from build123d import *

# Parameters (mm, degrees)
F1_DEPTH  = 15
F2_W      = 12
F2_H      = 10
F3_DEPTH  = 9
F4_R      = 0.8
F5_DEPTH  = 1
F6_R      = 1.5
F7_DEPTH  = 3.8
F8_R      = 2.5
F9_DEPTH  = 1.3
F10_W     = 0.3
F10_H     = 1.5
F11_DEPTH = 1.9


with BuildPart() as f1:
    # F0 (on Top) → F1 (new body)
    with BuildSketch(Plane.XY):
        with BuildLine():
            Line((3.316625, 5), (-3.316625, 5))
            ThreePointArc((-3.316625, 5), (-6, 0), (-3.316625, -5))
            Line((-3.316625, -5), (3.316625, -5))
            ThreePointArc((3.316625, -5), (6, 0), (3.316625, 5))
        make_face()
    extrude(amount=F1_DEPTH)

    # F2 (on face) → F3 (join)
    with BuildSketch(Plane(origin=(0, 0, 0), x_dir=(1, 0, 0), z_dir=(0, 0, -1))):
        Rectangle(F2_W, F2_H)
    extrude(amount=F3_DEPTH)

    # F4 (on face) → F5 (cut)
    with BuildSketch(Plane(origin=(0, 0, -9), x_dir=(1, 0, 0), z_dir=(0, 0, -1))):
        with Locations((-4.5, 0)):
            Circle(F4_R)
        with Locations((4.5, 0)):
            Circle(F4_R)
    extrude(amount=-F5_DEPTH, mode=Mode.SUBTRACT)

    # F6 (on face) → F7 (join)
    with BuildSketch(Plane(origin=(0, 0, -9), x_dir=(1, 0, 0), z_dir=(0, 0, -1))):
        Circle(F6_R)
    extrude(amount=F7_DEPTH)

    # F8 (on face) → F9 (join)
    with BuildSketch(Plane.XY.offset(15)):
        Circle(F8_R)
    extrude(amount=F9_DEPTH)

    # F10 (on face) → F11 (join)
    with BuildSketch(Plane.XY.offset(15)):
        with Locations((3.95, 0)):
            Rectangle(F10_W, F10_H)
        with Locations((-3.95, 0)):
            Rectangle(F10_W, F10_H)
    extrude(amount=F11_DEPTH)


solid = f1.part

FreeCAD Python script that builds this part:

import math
import FreeCAD as App
import Part
import Sketcher
Q = App.Units.Quantity


def add_polygon(sketch, points):
    """Adds a closed chain of lines whose ends are joined by coincident constraints."""
    first, n = sketch.GeometryCount, len(points)
    for a, b in zip(points, points[1:] + points[:1]):
        sketch.addGeometry(Part.LineSegment(App.Vector(*a, 0), App.Vector(*b, 0)), False)
    for i in range(n):
        sketch.addConstraint(Sketcher.Constraint("Coincident", first + i, 2, first + (i + 1) % n, 1))

doc = App.newDocument("Part")
body = doc.addObject("PartDesign::Body", "Body")

sketch1 = body.newObject("Sketcher::SketchObject", "Sketch")
sketch1.AttachmentSupport = (doc.getObject("XY_Plane"), [""])
sketch1.MapMode = "FlatFace"
sketch1.addGeometry([
    Part.LineSegment(App.Vector(3, 5, 0), App.Vector(-3, 5, 0)),
    Part.ArcOfCircle(Part.Circle(App.Vector(0, 0, 0), App.Vector(0, 0, 1), 6), math.radians(124), math.radians(236)),
    Part.LineSegment(App.Vector(-3, -5, 0), App.Vector(3, -5, 0)),
    Part.ArcOfCircle(Part.Circle(App.Vector(0, 0, 0), App.Vector(0, 0, 1), 6), math.radians(-56), math.radians(56)),
], False)
sketch1.addConstraint([
    Sketcher.Constraint("Coincident", 0, 2, 1, 1),
    Sketcher.Constraint("Coincident", 1, 2, 2, 1),
    Sketcher.Constraint("Coincident", 2, 2, 3, 1),
    Sketcher.Constraint("Coincident", 3, 2, 0, 1),
    Sketcher.Constraint("Horizontal", 0),
    Sketcher.Constraint("Horizontal", 2),
    Sketcher.Constraint("Coincident", 1, 3, -1, 1),
    Sketcher.Constraint("Coincident", 3, 3, -1, 1),
    Sketcher.Constraint("Equal", 1, 3),
    Sketcher.Constraint("Vertical", 0, 2, 1, 2),
    Sketcher.Constraint("Radius", 1, Q("6 mm")),
    Sketcher.Constraint("DistanceY", -1, 1, 0, 2, Q("5 mm")),
])
pad1 = body.newObject("PartDesign::Pad", "Pad")
pad1.Profile = sketch1
pad1.Length = 15

sketch2 = body.newObject("Sketcher::SketchObject", "Sketch001")
sketch2.AttachmentSupport = (doc.getObject("XY_Plane"), [""])
sketch2.MapMode = "FlatFace"
add_polygon(sketch2, [(-6, -5), (-6, 5), (6, 5), (6, -5)])
sketch2.addConstraint([
    Sketcher.Constraint("Vertical", 0),
    Sketcher.Constraint("Horizontal", 1),
    Sketcher.Constraint("Vertical", 2),
    Sketcher.Constraint("Horizontal", 3),
    Sketcher.Constraint("Symmetric", 0, 2, 2, 2, -1, 1),
    Sketcher.Constraint("DistanceX", 1, 1, 1, 2, Q("12 mm")),
    Sketcher.Constraint("DistanceY", 0, 1, 0, 2, Q("10 mm")),
])
pad2 = body.newObject("PartDesign::Pad", "Pad001")
pad2.Profile = sketch2
pad2.Length = 9
pad2.Reversed = True

sketch3 = body.newObject("Sketcher::SketchObject", "Sketch002")
sketch3.AttachmentSupport = (doc.getObject("XY_Plane"), [""])
sketch3.MapMode = "FlatFace"
sketch3.AttachmentOffset = App.Placement(App.Vector(0, 0, -9), App.Rotation())
sketch3.addGeometry([
    Part.Circle(App.Vector(-4.5, 0, 0), App.Vector(0, 0, 1), 0.8),
    Part.Circle(App.Vector(4.5, 0, 0), App.Vector(0, 0, 1), 0.8),
], False)
sketch3.addConstraint([
    Sketcher.Constraint("Equal", 0, 1),
    Sketcher.Constraint("Symmetric", 0, 3, 1, 3, -1, 1),
    Sketcher.Constraint("PointOnObject", 0, 3, -1),
    Sketcher.Constraint("Diameter", 0, Q("1.6 mm")),
    Sketcher.Constraint("DistanceX", 0, 3, 1, 3, Q("9 mm")),
])
pocket1 = body.newObject("PartDesign::Pocket", "Pocket")
pocket1.Profile = sketch3
pocket1.Length = 1
pocket1.Reversed = True

sketch4 = body.newObject("Sketcher::SketchObject", "Sketch003")
sketch4.AttachmentSupport = (doc.getObject("XY_Plane"), [""])
sketch4.MapMode = "FlatFace"
sketch4.AttachmentOffset = App.Placement(App.Vector(0, 0, -9), App.Rotation())
sketch4.addGeometry(Part.Circle(App.Vector(0, 0, 0), App.Vector(0, 0, 1), 1.5), False)
sketch4.addConstraint([
    Sketcher.Constraint("Coincident", 0, 3, -1, 1),
    Sketcher.Constraint("Diameter", 0, Q("3 mm")),
])
pad3 = body.newObject("PartDesign::Pad", "Pad002")
pad3.Profile = sketch4
pad3.Length = 3.8
pad3.Reversed = True

sketch5 = body.newObject("Sketcher::SketchObject", "Sketch004")
sketch5.AttachmentSupport = (doc.getObject("XY_Plane"), [""])
sketch5.MapMode = "FlatFace"
sketch5.AttachmentOffset = App.Placement(App.Vector(0, 0, 15), App.Rotation())
sketch5.addGeometry(Part.Circle(App.Vector(0, 0, 0), App.Vector(0, 0, 1), 2.5), False)
sketch5.addConstraint([
    Sketcher.Constraint("Coincident", 0, 3, -1, 1),
    Sketcher.Constraint("Diameter", 0, Q("5 mm")),
])
pad4 = body.newObject("PartDesign::Pad", "Pad003")
pad4.Profile = sketch5
pad4.Length = 1.3

sketch6 = body.newObject("Sketcher::SketchObject", "Sketch005")
sketch6.AttachmentSupport = (doc.getObject("XY_Plane"), [""])
sketch6.MapMode = "FlatFace"
sketch6.AttachmentOffset = App.Placement(App.Vector(0, 0, 15), App.Rotation())
add_polygon(sketch6, [(3.8, 0.75), (3.8, -0.75), (4.1, -0.75), (4.1, 0.75)])
add_polygon(sketch6, [(-4.1, 0.75), (-4.1, -0.75), (-3.8, -0.75), (-3.8, 0.75)])
sketch6.addConstraint([
    Sketcher.Constraint("Vertical", 0),
    Sketcher.Constraint("Horizontal", 1),
    Sketcher.Constraint("Vertical", 2),
    Sketcher.Constraint("Horizontal", 3),
    Sketcher.Constraint("Vertical", 4),
    Sketcher.Constraint("Horizontal", 5),
    Sketcher.Constraint("Vertical", 6),
    Sketcher.Constraint("Horizontal", 7),
    Sketcher.Constraint("Symmetric", 2, 2, 4, 2, -1, 1),
    Sketcher.Constraint("Symmetric", 0, 2, 6, 2, -1, 1),
    Sketcher.Constraint("Horizontal", 1, 2, 4, 2),
    Sketcher.Constraint("DistanceX", 1, 1, 1, 2, Q("0.3 mm")),
    Sketcher.Constraint("DistanceY", 0, 2, 0, 1, Q("1.5 mm")),
    Sketcher.Constraint("DistanceX", -1, 1, 0, 2, Q("3.8 mm")),
])
pad5 = body.newObject("PartDesign::Pad", "Pad004")
pad5.Profile = sketch6
pad5.Length = 1.9

doc.recompute()
